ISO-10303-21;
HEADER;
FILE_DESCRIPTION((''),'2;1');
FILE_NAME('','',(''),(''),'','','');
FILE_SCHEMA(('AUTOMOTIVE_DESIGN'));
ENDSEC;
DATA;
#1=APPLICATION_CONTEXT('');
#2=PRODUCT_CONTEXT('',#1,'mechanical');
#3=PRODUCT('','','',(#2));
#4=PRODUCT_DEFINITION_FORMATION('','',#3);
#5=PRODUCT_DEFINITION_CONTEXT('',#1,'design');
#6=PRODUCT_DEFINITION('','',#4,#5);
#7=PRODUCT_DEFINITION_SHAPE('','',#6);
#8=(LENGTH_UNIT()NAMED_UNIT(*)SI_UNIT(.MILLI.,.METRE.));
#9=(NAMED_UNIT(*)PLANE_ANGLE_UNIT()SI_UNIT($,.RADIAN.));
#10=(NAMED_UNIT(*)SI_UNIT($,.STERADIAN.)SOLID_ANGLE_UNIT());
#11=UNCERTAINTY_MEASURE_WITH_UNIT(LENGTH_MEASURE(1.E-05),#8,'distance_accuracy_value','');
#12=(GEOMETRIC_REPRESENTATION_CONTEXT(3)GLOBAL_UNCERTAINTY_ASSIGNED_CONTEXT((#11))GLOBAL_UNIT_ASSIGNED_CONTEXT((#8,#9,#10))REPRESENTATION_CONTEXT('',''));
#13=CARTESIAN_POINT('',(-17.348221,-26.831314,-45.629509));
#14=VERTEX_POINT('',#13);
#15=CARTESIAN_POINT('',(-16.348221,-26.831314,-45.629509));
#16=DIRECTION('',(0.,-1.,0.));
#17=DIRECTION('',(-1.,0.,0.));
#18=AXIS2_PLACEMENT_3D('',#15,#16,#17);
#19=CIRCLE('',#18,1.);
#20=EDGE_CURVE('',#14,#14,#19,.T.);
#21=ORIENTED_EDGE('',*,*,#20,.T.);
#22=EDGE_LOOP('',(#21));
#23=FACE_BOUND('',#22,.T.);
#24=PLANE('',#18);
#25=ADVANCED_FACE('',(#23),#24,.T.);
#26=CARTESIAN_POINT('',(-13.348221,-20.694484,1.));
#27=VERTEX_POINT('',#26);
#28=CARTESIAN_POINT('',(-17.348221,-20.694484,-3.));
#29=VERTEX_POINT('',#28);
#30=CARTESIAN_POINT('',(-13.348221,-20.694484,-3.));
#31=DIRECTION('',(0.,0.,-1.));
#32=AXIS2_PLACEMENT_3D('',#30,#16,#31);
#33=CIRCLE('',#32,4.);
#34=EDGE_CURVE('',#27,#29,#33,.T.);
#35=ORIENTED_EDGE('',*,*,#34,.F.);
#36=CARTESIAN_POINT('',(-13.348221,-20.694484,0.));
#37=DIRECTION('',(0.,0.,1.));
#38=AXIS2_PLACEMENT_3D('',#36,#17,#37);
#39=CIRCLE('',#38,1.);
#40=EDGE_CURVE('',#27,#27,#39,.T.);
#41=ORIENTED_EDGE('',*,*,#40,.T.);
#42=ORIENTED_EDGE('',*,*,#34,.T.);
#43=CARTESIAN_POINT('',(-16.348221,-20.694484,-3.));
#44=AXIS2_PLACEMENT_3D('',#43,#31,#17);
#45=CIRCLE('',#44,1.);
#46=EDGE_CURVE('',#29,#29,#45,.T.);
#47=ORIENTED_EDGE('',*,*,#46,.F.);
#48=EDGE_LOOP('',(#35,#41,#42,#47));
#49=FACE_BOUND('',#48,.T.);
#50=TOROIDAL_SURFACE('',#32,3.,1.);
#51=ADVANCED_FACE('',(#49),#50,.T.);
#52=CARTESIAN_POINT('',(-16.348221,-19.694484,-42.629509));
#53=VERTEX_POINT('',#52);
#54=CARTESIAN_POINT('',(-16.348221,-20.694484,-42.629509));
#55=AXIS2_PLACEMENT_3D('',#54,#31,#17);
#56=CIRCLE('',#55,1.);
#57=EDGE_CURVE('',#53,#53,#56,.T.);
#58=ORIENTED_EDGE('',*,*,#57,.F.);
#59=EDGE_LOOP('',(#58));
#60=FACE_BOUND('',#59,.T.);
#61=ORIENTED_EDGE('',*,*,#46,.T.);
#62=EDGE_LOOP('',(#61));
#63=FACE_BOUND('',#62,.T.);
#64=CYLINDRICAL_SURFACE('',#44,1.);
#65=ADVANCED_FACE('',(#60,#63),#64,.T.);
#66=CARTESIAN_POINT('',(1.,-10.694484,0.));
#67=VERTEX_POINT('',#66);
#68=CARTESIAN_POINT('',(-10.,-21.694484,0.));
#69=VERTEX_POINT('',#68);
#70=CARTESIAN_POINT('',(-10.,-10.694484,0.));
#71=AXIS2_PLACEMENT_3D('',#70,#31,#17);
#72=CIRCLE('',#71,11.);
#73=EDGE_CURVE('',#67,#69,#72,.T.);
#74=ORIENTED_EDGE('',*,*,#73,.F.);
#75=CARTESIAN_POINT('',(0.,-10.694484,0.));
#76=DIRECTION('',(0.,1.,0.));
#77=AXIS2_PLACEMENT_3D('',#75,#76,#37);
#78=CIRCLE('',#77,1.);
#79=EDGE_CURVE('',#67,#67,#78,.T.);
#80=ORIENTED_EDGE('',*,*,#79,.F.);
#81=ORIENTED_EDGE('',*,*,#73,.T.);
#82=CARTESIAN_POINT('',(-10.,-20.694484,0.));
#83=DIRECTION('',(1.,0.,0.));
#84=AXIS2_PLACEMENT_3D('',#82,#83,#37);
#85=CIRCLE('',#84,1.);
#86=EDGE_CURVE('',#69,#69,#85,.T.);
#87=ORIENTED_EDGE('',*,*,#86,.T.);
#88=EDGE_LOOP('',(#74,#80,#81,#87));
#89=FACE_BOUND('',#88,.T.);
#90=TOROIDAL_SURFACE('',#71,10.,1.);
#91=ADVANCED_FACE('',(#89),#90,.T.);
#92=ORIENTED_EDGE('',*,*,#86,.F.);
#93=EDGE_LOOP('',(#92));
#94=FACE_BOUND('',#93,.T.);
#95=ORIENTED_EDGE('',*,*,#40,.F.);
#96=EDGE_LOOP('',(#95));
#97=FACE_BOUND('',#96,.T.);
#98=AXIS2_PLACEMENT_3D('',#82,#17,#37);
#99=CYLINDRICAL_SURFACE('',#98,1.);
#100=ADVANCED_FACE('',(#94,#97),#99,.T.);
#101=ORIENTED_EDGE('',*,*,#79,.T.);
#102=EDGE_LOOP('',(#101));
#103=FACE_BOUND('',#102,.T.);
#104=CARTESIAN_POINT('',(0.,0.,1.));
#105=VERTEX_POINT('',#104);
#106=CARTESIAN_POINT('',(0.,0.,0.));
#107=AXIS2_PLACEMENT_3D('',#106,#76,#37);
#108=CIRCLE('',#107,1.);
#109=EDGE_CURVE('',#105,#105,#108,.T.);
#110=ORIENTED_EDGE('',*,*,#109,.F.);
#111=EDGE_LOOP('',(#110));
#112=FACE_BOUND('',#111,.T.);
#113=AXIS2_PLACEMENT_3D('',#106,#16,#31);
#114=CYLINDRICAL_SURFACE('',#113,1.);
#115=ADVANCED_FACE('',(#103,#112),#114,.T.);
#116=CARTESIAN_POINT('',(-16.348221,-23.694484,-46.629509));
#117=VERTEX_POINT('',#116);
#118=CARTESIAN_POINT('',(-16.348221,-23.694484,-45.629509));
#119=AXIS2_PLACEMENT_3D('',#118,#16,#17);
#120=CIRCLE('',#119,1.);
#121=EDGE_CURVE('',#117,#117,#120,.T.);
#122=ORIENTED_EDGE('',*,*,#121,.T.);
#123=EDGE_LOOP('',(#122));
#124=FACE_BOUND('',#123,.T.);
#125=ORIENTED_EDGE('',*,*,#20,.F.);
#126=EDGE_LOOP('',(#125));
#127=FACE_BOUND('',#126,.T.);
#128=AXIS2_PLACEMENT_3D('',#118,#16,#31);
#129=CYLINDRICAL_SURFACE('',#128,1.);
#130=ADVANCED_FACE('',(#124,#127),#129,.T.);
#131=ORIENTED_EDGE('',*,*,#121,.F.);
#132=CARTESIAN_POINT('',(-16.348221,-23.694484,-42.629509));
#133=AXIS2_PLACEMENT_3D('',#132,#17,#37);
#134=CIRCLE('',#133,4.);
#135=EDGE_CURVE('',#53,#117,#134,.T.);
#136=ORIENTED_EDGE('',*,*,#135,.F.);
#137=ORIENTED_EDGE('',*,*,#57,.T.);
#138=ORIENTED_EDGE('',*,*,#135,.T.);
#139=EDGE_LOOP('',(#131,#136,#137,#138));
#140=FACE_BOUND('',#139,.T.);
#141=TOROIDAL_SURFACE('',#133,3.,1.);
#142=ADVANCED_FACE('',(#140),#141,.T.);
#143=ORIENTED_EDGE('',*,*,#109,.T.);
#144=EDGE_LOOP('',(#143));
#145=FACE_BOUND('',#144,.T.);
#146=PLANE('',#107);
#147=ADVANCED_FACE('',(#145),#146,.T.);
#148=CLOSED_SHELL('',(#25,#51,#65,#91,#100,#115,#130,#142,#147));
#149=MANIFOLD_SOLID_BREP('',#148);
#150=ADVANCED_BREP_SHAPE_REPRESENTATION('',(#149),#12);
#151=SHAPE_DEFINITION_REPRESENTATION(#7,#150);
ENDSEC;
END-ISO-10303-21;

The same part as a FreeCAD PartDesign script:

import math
import FreeCAD as App
import Part
import Sketcher
Q = App.Units.Quantity

doc = App.newDocument("Part")
body = doc.addObject("PartDesign::Body", "Body")

# Sketch on XZ plane
sketch1 = body.newObject("Sketcher::SketchObject", "Sketch")
sketch1.AttachmentSupport = (doc.getObject("XZ_Plane"), [""])
sketch1.MapMode = "FlatFace"
sketch1.addGeometry(Part.Circle(App.Vector(0, 0, 0), App.Vector(0, 0, 1), 1), False)
sketch1.addConstraint(Sketcher.Constraint("Coincident", 0, 3, -1, 1))
sketch1.addConstraint(Sketcher.Constraint("Diameter", 0, Q("2 mm")))

# Sketch on XY plane
sketch2 = body.newObject("Sketcher::SketchObject", "Sketch001")
sketch2.AttachmentSupport = (doc.getObject("XY_Plane"), [""])
sketch2.MapMode = "FlatFace"
sketch2.addGeometry(Part.LineSegment(App.Vector(0, 0, 0), App.Vector(0, -10.7, 0)), False)
sketch2.addGeometry(Part.ArcOfCircle(Part.Circle(App.Vector(-10, -10.7, 0), App.Vector(0, 0, 1), 10), math.radians(-90), math.radians(0)), False)
sketch2.addGeometry(Part.LineSegment(App.Vector(-10, -20.7, 0), App.Vector(-12.5, -20.7, 0)), False)
sketch2.addConstraint(Sketcher.Constraint("Tangent", 0, 2, 1, 2))
sketch2.addConstraint(Sketcher.Constraint("Tangent", 1, 1, 2, 1))
sketch2.addConstraint(Sketcher.Constraint("Vertical", 0))
sketch2.addConstraint(Sketcher.Constraint("Horizontal", 2))
sketch2.addConstraint(Sketcher.Constraint("Coincident", 0, 1, -1, 1))
sketch2.addConstraint(Sketcher.Constraint("Radius", 1, Q("10 mm")))
sketch2.addConstraint(Sketcher.Constraint("DistanceX", 2, 2, 2, 1, Q("2.508438 mm")))
sketch2.addConstraint(Sketcher.Constraint("DistanceY", 0, 2, 0, 1, Q("10.694484 mm")))
doc.recompute()

additivepipe = body.newObject("PartDesign::AdditivePipe", "AdditivePipe")
additivepipe.Profile = sketch1
additivepipe.Spine = (sketch2, ["Edge1", "Edge2", "Edge3"])

# Sketch on YZ plane
sketch3 = body.newObject("Sketcher::SketchObject", "Sketch002")
sketch3.AttachmentSupport = (doc.getObject("YZ_Plane"), [""])
sketch3.MapMode = "FlatFace"
sketch3.AttachmentOffset = App.Placement(App.Vector(0, 0, -12.508438), App.Rotation())
sketch3.addGeometry(Part.Circle(App.Vector(-20.7, 0, 0), App.Vector(0, 0, 1), 1), False)
sketch3.addConstraint(Sketcher.Constraint("PointOnObject", 0, 3, -1))
sketch3.addConstraint(Sketcher.Constraint("Diameter", 0, Q("2 mm")))
sketch3.addConstraint(Sketcher.Constraint("DistanceX", 0, 3, -1, 1, Q("20.694484 mm")))

# Sketch on XZ plane
sketch4 = body.newObject("Sketcher::SketchObject", "Sketch003")
sketch4.AttachmentSupport = (doc.getObject("XZ_Plane"), [""])
sketch4.MapMode = "FlatFace"
sketch4.AttachmentOffset = App.Placement(App.Vector(0, 0, 20.694484), App.Rotation())
sketch4.addGeometry(Part.LineSegment(App.Vector(-12.5, 0, 0), App.Vector(-13.3, 0, 0)), False)
sketch4.addGeometry(Part.ArcOfCircle(Part.Circle(App.Vector(-13.3, -3, 0), App.Vector(0, 0, 1), 3), math.radians(90), math.radians(180)), False)
sketch4.addGeometry(Part.LineSegment(App.Vector(-16.3, -3, 0), App.Vector(-16.3, -39.9, 0)), False)
sketch4.addConstraint(Sketcher.Constraint("Tangent", 0, 2, 1, 1))
sketch4.addConstraint(Sketcher.Constraint("Tangent", 1, 2, 2, 1))
sketch4.addConstraint(Sketcher.Constraint("Horizontal", 0))
sketch4.addConstraint(Sketcher.Constraint("Vertical", 2))
sketch4.addConstraint(Sketcher.Constraint("PointOnObject", 0, 1, -1))
sketch4.addConstraint(Sketcher.Constraint("Radius", 1, Q("3 mm")))
sketch4.addConstraint(Sketcher.Constraint("DistanceX", 0, 2, 0, 1, Q("0.839783 mm")))
sketch4.addConstraint(Sketcher.Constraint("DistanceY", 2, 2, 2, 1, Q("36.916633 mm")))
sketch4.addConstraint(Sketcher.Constraint("DistanceX", 1, 3, -1, 1, Q("13.348221 mm")))
doc.recompute()

additivepipe2 = body.newObject("PartDesign::AdditivePipe", "AdditivePipe001")
additivepipe2.Profile = sketch3
additivepipe2.Spine = (sketch4, ["Edge1", "Edge2", "Edge3"])

# Sketch on XY plane
sketch5 = body.newObject("Sketcher::SketchObject", "Sketch004")
sketch5.AttachmentSupport = (doc.getObject("XY_Plane"), [""])
sketch5.MapMode = "FlatFace"
sketch5.AttachmentOffset = App.Placement(App.Vector(0, 0, -39.916633), App.Rotation())
sketch5.addGeometry(Part.Circle(App.Vector(-16.3, -20.7, 0), App.Vector(0, 0, 1), 1), False)
sketch5.addConstraint(Sketcher.Constraint("Diameter", 0, Q("2 mm")))
sketch5.addConstraint(Sketcher.Constraint("DistanceX", 0, 3, -1, 1, Q("16.348221 mm")))
sketch5.addConstraint(Sketcher.Constraint("DistanceY", 0, 3, -1, 1, Q("20.694484 mm")))

# Sketch on YZ plane
sketch6 = body.newObject("Sketcher::SketchObject", "Sketch005")
sketch6.AttachmentSupport = (doc.getObject("YZ_Plane"), [""])
sketch6.MapMode = "FlatFace"
sketch6.AttachmentOffset = App.Placement(App.Vector(0, 0, -16.348221), App.Rotation())
sketch6.addGeometry(Part.LineSegment(App.Vector(-20.7, -39.9, 0), App.Vector(-20.7, -42.6, 0)), False)
sketch6.addGeometry(Part.ArcOfCircle(Part.Circle(App.Vector(-23.7, -42.6, 0), App.Vector(0, 0, 1), 3), math.radians(-90), math.radians(0)), False)
sketch6.addGeometry(Part.LineSegment(App.Vector(-23.7, -45.6, 0), App.Vector(-26.8, -45.6, 0)), False)
sketch6.addConstraint(Sketcher.Constraint("Tangent", 0, 2, 1, 2))
sketch6.addConstraint(Sketcher.Constraint("Tangent", 1, 1, 2, 1))
sketch6.addConstraint(Sketcher.Constraint("Vertical", 0))
sketch6.addConstraint(Sketcher.Constraint("Horizontal", 2))
sketch6.addConstraint(Sketcher.Constraint("Radius", 1, Q("3 mm")))
sketch6.addConstraint(Sketcher.Constraint("DistanceX", 2, 2, 2, 1, Q("3.13683 mm")))
sketch6.addConstraint(Sketcher.Constraint("DistanceY", 0, 2, 0, 1, Q("2.712876 mm")))
sketch6.addConstraint(Sketcher.Constraint("DistanceY", 1, 3, -1, 1, Q("42.629509 mm")))
sketch6.addConstraint(Sketcher.Constraint("DistanceX", 1, 3, -1, 1, Q("23.694484 mm")))
doc.recompute()

additivepipe3 = body.newObject("PartDesign::AdditivePipe", "AdditivePipe002")
additivepipe3.Profile = sketch5
additivepipe3.Spine = (sketch6, ["Edge1", "Edge2", "Edge3"])

doc.recompute()
